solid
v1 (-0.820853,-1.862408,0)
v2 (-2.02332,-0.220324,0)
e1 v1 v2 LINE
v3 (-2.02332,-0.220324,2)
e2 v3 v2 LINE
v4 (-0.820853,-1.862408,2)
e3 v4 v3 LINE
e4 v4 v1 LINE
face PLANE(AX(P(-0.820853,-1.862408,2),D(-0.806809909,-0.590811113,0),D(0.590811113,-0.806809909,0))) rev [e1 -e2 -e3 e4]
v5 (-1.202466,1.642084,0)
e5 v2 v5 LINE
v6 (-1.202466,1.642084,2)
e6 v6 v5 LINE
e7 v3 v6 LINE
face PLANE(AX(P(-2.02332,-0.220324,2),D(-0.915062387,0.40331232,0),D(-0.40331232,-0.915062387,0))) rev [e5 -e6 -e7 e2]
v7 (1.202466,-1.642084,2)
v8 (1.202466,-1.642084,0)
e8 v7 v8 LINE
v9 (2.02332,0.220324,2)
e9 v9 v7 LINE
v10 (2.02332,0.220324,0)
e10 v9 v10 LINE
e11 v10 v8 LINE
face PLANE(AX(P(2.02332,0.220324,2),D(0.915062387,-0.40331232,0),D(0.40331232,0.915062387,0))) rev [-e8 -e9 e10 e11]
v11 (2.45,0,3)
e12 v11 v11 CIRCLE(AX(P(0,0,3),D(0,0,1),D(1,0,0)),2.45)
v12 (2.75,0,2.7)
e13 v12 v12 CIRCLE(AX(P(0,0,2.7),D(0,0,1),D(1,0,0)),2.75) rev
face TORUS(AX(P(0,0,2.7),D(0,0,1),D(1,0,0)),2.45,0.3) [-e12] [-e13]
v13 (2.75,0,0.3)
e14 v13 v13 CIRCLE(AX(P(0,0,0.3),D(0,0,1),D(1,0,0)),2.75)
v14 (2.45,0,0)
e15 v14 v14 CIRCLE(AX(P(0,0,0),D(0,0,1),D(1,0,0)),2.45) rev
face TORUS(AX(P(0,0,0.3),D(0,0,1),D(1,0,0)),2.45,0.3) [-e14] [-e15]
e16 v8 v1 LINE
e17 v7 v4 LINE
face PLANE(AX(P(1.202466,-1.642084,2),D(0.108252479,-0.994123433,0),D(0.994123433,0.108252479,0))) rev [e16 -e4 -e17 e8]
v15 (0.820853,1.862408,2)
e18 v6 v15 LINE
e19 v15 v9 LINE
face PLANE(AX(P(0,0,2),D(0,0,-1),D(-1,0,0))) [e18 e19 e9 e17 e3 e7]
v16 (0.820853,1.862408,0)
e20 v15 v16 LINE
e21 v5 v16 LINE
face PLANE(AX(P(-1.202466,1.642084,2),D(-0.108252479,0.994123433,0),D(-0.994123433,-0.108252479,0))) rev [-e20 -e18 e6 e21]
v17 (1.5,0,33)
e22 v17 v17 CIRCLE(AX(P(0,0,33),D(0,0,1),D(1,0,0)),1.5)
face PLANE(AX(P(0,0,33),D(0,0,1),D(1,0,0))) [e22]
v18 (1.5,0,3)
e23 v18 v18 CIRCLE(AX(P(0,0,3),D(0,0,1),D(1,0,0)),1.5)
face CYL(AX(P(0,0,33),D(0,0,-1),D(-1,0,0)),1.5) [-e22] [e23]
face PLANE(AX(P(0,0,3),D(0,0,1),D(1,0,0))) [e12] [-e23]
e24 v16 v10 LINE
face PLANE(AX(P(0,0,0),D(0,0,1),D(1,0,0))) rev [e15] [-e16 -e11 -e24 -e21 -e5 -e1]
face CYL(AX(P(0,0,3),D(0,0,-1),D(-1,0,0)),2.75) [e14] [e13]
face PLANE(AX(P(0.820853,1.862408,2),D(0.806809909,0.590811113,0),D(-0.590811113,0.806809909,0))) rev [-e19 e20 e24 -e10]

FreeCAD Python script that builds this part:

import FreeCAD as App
import Part
import Sketcher
from FreeCAD import Vector
Q = App.Units.Quantity


def edges_at(feature, points):
    """Names of the edges that pass closest to the given points."""
    edges = feature.Shape.Edges
    near = lambda p: min(range(len(edges)), key=lambda i: edges[i].distToShape(Part.Vertex(*p))[0])
    return sorted({f"Edge{near(p) + 1}" for p in points})


def add_polygon(sketch, points):
    """Adds a closed chain of lines whose ends are joined by coincident constraints."""
    first, n = sketch.GeometryCount, len(points)
    for a, b in zip(points, points[1:] + points[:1]):
        sketch.addGeometry(Part.LineSegment(App.Vector(*a, 0), App.Vector(*b, 0)), False)
    for i in range(n):
        sketch.addConstraint(Sketcher.Constraint("Coincident", first + i, 2, first + (i + 1) % n, 1))

doc = App.newDocument("Part")
body = doc.addObject("PartDesign::Body", "Body")

# Sketch on XY plane
sketch1 = body.newObject("Sketcher::SketchObject", "Sketch")
sketch1.AttachmentSupport = (doc.getObject("XY_Plane"), [""])
sketch1.MapMode = "FlatFace"
sketch1.addGeometry(Part.Circle(Vector(0, 0, 0), Vector(0, 0, 1), 2.8), False)
sketch1.addConstraint([
    Sketcher.Constraint("Coincident", 0, 3, -1, 1),
    Sketcher.Constraint("Diameter", 0, Q("5.5 mm")),
])
pad1 = body.newObject("PartDesign::Pad", "Pad")
pad1.Profile = sketch1
pad1.Length = 3

# Sketch on XY plane
sketch2 = body.newObject("Sketcher::SketchObject", "Sketch001")
sketch2.AttachmentSupport = (doc.getObject("XY_Plane"), [""])
sketch2.MapMode = "FlatFace"
sketch2.AttachmentOffset = App.Placement(Vector(0, 0, 3), App.Rotation())
sketch2.addGeometry(Part.Circle(Vector(0, 0, 0), Vector(0, 0, 1), 1.5), False)
sketch2.addConstraint([
    Sketcher.Constraint("Coincident", 0, 3, -1, 1),
    Sketcher.Constraint("Diameter", 0, Q("3 mm")),
])
pad2 = body.newObject("PartDesign::Pad", "Pad001")
pad2.Profile = sketch2
pad2.Length = 30
doc.recompute()

fillet = body.newObject("PartDesign::Fillet", "Fillet")
fillet.Base = (pad2, edges_at(pad2, [(-2.75, 0, 0), (-2.75, 0, 3)]))
fillet.Radius = 0.3

# Sketch on XY plane
sketch3 = body.newObject("Sketcher::SketchObject", "Sketch002")
sketch3.AttachmentSupport = (doc.getObject("XY_Plane"), [""])
sketch3.MapMode = "FlatFace"
add_polygon(sketch3, [(0.8, 1.9), (2, 0.2), (1.2, -1.6), (-0.8, -1.9), (-2, -0.2), (-1.2, 1.6)])  # lines 0-5
sketch3.addConstraint([
    Sketcher.Constraint("Symmetric", 0, 2, 3, 2, -1, 1),
    Sketcher.Constraint("Symmetric", 1, 2, 4, 2, -1, 1),
    Sketcher.Constraint("Symmetric", 2, 2, 5, 2, -1, 1),
    Sketcher.Constraint("Equal", 0, 1),
    Sketcher.Constraint("Equal", 1, 2),
    Sketcher.Constraint("Distance", 0, Q("2.03528 mm")),
    Sketcher.Constraint("DistanceX", -1, 1, 0, 2, Q("2.02332 mm")),
    Sketcher.Constraint("DistanceY", 2, 2, -1, 1, Q("1.862408 mm")),
    Sketcher.Constraint("DistanceY", 1, 2, 0, 2, Q("1.862408 mm")),
])
pocket1 = body.newObject("PartDesign::Pocket", "Pocket")
pocket1.Profile = sketch3
pocket1.Length = 2
pocket1.Reversed = True

doc.recompute()
